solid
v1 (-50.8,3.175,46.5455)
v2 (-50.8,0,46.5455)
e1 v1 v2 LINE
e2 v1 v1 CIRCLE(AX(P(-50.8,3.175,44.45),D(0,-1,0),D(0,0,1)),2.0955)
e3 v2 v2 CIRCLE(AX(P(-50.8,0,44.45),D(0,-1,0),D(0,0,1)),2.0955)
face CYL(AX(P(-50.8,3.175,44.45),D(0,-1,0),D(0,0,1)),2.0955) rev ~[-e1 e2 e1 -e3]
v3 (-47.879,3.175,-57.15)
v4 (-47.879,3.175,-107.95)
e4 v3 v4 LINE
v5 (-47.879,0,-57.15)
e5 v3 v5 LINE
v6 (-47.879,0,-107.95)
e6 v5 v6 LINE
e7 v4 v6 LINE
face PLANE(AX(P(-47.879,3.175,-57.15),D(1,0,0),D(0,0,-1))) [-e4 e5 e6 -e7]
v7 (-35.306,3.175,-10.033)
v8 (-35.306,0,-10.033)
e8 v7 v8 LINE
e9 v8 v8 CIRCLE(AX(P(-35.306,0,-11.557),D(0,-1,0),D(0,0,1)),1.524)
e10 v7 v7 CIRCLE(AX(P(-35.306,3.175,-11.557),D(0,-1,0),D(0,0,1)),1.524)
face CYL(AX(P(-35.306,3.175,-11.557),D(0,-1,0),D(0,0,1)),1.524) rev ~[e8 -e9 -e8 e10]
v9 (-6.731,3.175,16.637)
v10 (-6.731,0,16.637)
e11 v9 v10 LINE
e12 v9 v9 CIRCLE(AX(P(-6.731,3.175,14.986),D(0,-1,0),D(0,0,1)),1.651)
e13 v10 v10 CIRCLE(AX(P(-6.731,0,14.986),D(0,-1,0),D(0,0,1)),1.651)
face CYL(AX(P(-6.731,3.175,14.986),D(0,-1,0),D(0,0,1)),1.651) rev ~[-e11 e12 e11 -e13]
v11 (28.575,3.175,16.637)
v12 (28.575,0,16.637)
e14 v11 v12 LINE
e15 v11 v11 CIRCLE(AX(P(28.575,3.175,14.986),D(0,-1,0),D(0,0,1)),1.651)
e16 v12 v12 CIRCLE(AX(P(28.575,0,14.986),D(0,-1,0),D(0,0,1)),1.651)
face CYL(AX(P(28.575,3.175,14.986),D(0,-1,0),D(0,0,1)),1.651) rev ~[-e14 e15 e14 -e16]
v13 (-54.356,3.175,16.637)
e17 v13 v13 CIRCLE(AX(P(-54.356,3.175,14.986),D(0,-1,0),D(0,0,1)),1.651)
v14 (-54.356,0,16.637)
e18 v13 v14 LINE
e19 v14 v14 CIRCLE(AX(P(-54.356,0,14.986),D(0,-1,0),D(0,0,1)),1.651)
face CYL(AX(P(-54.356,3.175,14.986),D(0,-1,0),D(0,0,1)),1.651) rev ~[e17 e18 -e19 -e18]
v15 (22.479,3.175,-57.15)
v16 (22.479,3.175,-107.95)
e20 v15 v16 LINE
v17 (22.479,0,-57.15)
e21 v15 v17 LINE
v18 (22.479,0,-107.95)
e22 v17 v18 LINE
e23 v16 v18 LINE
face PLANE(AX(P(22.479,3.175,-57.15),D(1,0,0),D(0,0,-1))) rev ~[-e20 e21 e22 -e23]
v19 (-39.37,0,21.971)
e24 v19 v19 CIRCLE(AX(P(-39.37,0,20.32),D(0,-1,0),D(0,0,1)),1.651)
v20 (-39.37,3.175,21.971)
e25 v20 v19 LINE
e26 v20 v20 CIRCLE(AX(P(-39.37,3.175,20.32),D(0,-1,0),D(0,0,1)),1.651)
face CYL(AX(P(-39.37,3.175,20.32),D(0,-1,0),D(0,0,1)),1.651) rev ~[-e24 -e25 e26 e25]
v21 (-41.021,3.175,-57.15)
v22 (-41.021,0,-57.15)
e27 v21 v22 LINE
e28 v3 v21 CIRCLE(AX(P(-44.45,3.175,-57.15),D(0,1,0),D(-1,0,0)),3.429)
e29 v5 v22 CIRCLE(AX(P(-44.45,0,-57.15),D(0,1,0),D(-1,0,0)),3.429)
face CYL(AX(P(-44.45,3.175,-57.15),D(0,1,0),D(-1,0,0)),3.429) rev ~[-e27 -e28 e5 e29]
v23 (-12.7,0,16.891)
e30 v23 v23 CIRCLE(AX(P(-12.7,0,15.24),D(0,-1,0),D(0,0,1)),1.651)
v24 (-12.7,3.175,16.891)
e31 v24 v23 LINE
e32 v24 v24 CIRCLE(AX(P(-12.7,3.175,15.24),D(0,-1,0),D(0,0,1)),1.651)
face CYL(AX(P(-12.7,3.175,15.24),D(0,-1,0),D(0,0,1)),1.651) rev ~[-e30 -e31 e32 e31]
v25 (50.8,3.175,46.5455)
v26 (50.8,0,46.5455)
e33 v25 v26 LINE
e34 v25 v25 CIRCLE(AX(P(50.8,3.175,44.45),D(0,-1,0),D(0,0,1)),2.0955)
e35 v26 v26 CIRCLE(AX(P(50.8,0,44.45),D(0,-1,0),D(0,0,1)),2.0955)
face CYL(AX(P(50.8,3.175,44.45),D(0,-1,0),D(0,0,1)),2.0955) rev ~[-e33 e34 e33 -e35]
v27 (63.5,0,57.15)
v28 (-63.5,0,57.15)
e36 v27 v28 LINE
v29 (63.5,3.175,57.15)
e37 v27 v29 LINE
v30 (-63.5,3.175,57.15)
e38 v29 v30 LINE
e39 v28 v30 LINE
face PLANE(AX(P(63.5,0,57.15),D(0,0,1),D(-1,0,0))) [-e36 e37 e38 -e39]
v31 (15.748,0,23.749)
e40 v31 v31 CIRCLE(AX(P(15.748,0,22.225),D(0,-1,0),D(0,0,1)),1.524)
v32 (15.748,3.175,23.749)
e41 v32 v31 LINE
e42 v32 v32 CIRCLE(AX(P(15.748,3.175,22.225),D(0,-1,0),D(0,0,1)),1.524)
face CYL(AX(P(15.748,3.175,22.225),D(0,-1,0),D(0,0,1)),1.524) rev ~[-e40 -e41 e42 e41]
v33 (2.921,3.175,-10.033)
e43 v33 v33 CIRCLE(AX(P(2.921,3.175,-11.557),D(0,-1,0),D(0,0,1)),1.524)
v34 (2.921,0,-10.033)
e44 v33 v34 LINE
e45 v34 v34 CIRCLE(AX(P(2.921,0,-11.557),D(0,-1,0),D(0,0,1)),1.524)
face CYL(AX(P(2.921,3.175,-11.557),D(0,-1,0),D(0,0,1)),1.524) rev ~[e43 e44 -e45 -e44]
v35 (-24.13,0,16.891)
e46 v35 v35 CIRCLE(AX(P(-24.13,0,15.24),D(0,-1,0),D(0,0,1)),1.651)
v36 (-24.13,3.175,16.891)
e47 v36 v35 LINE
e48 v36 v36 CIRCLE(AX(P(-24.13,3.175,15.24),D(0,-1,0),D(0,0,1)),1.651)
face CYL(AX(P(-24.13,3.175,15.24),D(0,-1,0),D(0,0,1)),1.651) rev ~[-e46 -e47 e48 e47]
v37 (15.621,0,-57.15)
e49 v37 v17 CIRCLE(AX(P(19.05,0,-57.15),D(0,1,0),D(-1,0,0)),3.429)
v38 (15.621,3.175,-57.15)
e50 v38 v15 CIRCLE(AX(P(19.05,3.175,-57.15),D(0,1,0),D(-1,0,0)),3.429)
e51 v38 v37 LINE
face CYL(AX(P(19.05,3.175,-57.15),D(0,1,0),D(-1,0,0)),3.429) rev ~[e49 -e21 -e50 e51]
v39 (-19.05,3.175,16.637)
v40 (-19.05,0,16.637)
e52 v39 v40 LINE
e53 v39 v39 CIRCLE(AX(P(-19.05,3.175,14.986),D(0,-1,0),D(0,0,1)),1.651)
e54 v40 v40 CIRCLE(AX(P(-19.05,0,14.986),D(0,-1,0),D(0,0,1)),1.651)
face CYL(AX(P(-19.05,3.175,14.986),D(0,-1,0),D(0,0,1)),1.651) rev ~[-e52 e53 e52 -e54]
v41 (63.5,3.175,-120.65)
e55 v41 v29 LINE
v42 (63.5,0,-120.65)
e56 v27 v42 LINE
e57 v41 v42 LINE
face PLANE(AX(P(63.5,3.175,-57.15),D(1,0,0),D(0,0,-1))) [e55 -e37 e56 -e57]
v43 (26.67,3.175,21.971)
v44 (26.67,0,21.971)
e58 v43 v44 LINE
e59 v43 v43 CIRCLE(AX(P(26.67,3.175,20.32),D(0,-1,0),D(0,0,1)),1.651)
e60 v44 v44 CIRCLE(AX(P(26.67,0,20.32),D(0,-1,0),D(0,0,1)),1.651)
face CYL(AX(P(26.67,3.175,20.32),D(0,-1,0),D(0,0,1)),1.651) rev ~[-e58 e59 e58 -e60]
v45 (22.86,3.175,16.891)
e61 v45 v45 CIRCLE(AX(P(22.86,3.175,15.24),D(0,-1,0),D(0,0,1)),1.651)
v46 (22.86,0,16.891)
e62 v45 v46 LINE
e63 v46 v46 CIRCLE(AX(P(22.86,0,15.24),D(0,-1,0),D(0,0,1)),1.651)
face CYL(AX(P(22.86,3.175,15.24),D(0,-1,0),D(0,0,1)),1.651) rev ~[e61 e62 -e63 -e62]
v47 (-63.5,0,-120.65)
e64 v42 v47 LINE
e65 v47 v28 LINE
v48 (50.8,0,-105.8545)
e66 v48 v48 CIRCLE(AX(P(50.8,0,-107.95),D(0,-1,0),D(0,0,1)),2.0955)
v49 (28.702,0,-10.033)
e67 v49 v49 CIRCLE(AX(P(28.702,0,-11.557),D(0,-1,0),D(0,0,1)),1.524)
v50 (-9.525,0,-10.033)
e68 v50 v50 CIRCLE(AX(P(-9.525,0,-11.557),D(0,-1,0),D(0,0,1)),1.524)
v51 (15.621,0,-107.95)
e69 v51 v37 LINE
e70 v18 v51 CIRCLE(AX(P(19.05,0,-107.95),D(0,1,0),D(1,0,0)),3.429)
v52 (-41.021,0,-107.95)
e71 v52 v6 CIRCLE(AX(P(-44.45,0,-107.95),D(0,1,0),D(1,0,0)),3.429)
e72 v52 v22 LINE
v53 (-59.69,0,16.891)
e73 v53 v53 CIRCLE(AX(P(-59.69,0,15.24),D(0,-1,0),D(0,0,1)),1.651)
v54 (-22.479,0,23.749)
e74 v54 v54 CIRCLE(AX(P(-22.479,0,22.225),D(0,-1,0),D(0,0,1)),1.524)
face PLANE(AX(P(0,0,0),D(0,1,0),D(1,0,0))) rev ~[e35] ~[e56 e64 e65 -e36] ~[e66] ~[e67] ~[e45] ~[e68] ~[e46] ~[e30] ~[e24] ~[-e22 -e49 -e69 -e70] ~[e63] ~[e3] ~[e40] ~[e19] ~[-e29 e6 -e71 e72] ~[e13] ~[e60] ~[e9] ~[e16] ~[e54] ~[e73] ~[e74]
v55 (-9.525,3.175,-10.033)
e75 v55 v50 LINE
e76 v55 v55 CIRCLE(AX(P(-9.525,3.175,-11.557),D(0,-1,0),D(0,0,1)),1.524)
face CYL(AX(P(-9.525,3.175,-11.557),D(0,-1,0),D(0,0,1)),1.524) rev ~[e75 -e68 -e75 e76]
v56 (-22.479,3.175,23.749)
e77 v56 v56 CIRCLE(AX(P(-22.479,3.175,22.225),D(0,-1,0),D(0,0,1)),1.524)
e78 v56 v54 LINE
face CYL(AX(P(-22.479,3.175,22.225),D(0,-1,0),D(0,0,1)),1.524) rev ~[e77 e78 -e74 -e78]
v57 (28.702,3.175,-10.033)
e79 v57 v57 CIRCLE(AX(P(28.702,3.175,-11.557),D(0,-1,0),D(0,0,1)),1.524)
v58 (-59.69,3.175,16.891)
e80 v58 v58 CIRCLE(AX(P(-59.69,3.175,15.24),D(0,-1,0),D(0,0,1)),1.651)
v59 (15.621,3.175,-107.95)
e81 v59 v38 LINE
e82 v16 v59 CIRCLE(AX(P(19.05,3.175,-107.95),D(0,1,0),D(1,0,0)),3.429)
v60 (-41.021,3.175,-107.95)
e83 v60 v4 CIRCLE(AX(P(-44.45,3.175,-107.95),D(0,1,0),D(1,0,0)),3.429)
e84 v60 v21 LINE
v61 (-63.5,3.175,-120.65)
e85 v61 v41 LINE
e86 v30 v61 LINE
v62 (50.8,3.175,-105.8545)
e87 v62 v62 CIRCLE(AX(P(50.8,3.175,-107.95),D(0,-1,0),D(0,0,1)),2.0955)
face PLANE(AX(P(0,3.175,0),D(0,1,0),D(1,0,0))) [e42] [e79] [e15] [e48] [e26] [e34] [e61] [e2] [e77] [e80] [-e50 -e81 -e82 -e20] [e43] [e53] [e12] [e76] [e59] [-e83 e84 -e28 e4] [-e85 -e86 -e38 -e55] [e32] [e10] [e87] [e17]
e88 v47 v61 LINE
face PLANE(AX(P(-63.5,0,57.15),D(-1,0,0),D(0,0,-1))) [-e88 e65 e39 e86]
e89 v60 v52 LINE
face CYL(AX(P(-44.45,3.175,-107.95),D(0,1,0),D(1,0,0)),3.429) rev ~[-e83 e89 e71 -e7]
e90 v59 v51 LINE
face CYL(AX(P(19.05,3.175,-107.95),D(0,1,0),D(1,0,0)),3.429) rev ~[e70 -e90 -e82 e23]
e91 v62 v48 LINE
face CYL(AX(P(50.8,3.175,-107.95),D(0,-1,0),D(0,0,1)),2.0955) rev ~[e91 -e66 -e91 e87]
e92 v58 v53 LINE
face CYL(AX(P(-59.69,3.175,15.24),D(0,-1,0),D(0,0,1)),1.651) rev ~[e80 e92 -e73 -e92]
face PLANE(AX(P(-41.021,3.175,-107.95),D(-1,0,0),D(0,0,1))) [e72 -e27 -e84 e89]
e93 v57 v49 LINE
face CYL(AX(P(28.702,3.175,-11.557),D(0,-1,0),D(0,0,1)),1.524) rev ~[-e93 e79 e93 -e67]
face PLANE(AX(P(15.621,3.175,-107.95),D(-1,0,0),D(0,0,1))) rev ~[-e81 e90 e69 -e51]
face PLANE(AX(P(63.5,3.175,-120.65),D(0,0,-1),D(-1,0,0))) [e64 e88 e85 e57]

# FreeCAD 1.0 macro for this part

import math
import FreeCAD as App
import Part
import Sketcher
Q = App.Units.Quantity

doc = App.newDocument("Part")
body = doc.addObject("PartDesign::Body", "Body")

# Sketch on XZ plane
sketch1 = body.newObject("Sketcher::SketchObject", "Sketch")
sketch1.AttachmentSupport = (doc.getObject("XZ_Plane"), [""])
sketch1.MapMode = "FlatFace"
sketch1.addGeometry([
    Part.LineSegment(App.Vector(-64, 57, 0), App.Vector(64, 57, 0)),  # 0
    Part.LineSegment(App.Vector(64, 57, 0), App.Vector(64, -57, 0)),  # 1
    Part.LineSegment(App.Vector(64, -57, 0), App.Vector(38, -57, 0)),  # 2
    Part.LineSegment(App.Vector(38, -57, 0), App.Vector(38, -121, 0)),  # 3
    Part.LineSegment(App.Vector(38, -121, 0), App.Vector(-64, -121, 0)),  # 4
    Part.LineSegment(App.Vector(-64, -121, 0), App.Vector(-64, 57, 0)),  # 5
], False)
sketch1.addConstraint([
    Sketcher.Constraint("Coincident", 0, 2, 1, 1),
    Sketcher.Constraint("Coincident", 1, 2, 2, 1),
    Sketcher.Constraint("Coincident", 2, 2, 3, 1),
    Sketcher.Constraint("Coincident", 3, 2, 4, 1),
    Sketcher.Constraint("Coincident", 4, 2, 5, 1),
    Sketcher.Constraint("Coincident", 5, 2, 0, 1),
    Sketcher.Constraint("Horizontal", 0),
    Sketcher.Constraint("Vertical", 1),
    Sketcher.Constraint("Horizontal", 2),
    Sketcher.Constraint("Vertical", 3),
    Sketcher.Constraint("Horizontal", 4),
    Sketcher.Constraint("Vertical", 5),
    Sketcher.Constraint("Symmetric", 1, 2, 5, 2, -1, 1),
    Sketcher.Constraint("DistanceX", 0, 1, 0, 2, Q("5 in")),
    Sketcher.Constraint("DistanceX", 4, 2, 4, 1, Q("4 in")),
    Sketcher.Constraint("DistanceY", 1, 2, 1, 1, Q("4.5 in")),
    Sketcher.Constraint("DistanceY", 3, 2, 3, 1, Q("2.5 in")),
])
pad1 = body.newObject("PartDesign::Pad", "Pad")
pad1.Profile = sketch1
pad1.Length = Q("0.125 in")
pad1.Reversed = True

# Sketch on XZ plane
sketch2 = body.newObject("Sketcher::SketchObject", "Sketch001")
sketch2.AttachmentSupport = (doc.getObject("XZ_Plane"), [""])
sketch2.MapMode = "FlatFace"
sketch2.AttachmentOffset = App.Placement(App.Vector(0, 0, -0.125 * 25.4), App.Rotation())
sketch2.addGeometry([
    Part.LineSegment(App.Vector(38, -121, 0), App.Vector(38, -57, 0)),
    Part.LineSegment(App.Vector(38, -57, 0), App.Vector(64, -57, 0)),
    Part.LineSegment(App.Vector(64, -57, 0), App.Vector(64, -121, 0)),
    Part.LineSegment(App.Vector(64, -121, 0), App.Vector(38, -121, 0)),
], False)
sketch2.addConstraint([
    Sketcher.Constraint("Coincident", 0, 2, 1, 1),
    Sketcher.Constraint("Coincident", 1, 2, 2, 1),
    Sketcher.Constraint("Coincident", 2, 2, 3, 1),
    Sketcher.Constraint("Coincident", 3, 2, 0, 1),
    Sketcher.Constraint("Vertical", 0),
    Sketcher.Constraint("Horizontal", 1),
    Sketcher.Constraint("Vertical", 2),
    Sketcher.Constraint("Horizontal", 3),
    Sketcher.Constraint("DistanceX", 1, 1, 1, 2, Q("1 in")),
    Sketcher.Constraint("DistanceY", 0, 1, 0, 2, Q("2.5 in")),
    Sketcher.Constraint("DistanceX", -1, 1, 0, 2, Q("1.5 in")),
    Sketcher.Constraint("DistanceY", 0, 2, -1, 1, Q("2.25 in")),
])
pad2 = body.newObject("PartDesign::Pad", "Pad001")
pad2.Profile = sketch2
pad2.Length = Q("0.125 in")

# Sketch on XZ plane
sketch3 = body.newObject("Sketcher::SketchObject", "Sketch002")
sketch3.AttachmentSupport = (doc.getObject("XZ_Plane"), [""])
sketch3.MapMode = "FlatFace"
sketch3.AttachmentOffset = App.Placement(App.Vector(0, 0, -0.125 * 25.4), App.Rotation())
sketch3.addGeometry([
    Part.Circle(App.Vector(50.8, 44.5, 0), App.Vector(0, 0, 1), 2.1),
    Part.Circle(App.Vector(-50.8, 44.5, 0), App.Vector(0, 0, 1), 2.1),
], False)
sketch3.addConstraint([
    Sketcher.Constraint("Equal", 0, 1),
    Sketcher.Constraint("Symmetric", 0, 3, 1, 3, -2),
    Sketcher.Constraint("Diameter", 0, Q("0.165 in")),
    Sketcher.Constraint("DistanceX", -1, 1, 0, 3, Q("2 in")),
    Sketcher.Constraint("DistanceY", -1, 1, 0, 3, Q("1.75 in")),
])
doc.recompute()
hole = body.newObject("PartDesign::Hole", "Hole")
hole.Profile = sketch3
hole.ThreadType = "None"
hole.Diameter = Q("0.165 in")
hole.DepthType = "ThroughAll"
hole.Reversed = True

# Sketch on XZ plane
sketch4 = body.newObject("Sketcher::SketchObject", "Sketch003")
sketch4.AttachmentSupport = (doc.getObject("XZ_Plane"), [""])
sketch4.MapMode = "FlatFace"
sketch4.AttachmentOffset = App.Placement(App.Vector(0, 0, -0.125 * 25.4), App.Rotation())
sketch4.addGeometry([
    Part.ArcOfCircle(Part.Circle(App.Vector(19.1, -108, 0), App.Vector(0, 0, 1), 3.4), math.radians(180), math.radians(360)),  # 0
    Part.LineSegment(App.Vector(15.6, -108, 0), App.Vector(15.6, -57.1, 0)),  # 1
    Part.ArcOfCircle(Part.Circle(App.Vector(19.1, -57.1, 0), App.Vector(0, 0, 1), 3.4), math.radians(0), math.radians(180)),  # 2
    Part.LineSegment(App.Vector(22.5, -57.1, 0), App.Vector(22.5, -108, 0)),  # 3
    Part.LineSegment(App.Vector(-41, -57.1, 0), App.Vector(-41, -108, 0)),  # 4
    Part.ArcOfCircle(Part.Circle(App.Vector(-44.5, -108, 0), App.Vector(0, 0, 1), 3.4), math.radians(180), math.radians(360)),  # 5
    Part.LineSegment(App.Vector(-47.9, -108, 0), App.Vector(-47.9, -57.1, 0)),  # 6
    Part.ArcOfCircle(Part.Circle(App.Vector(-44.5, -57.1, 0), App.Vector(0, 0, 1), 3.4), math.radians(0), math.radians(180)),  # 7
], False)
sketch4.addConstraint([
    Sketcher.Constraint("Tangent", 0, 1, 1, 1),
    Sketcher.Constraint("Tangent", 1, 2, 2, 2),
    Sketcher.Constraint("Tangent", 2, 1, 3, 1),
    Sketcher.Constraint("Tangent", 3, 2, 0, 2),
    Sketcher.Constraint("Tangent", 4, 2, 5, 2),
    Sketcher.Constraint("Tangent", 5, 1, 6, 1),
    Sketcher.Constraint("Tangent", 6, 2, 7, 2),
    Sketcher.Constraint("Tangent", 7, 1, 4, 1),
    Sketcher.Constraint("Vertical", 1),
    Sketcher.Constraint("Vertical", 3),
    Sketcher.Constraint("Vertical", 4),
    Sketcher.Constraint("Vertical", 6),
    Sketcher.Constraint("Equal", 2, 5),
    Sketcher.Constraint("Horizontal", 0, 3, 5, 3),
    Sketcher.Constraint("Horizontal", 2, 3, 7, 3),
    Sketcher.Constraint("DistanceY", 1, 1, 1, 2, Q("2 in")),
    Sketcher.Constraint("Radius", 0, Q("0.135 in")),
    Sketcher.Constraint("DistanceX", -1, 1, 0, 3, Q("0.75 in")),
    Sketcher.Constraint("DistanceX", 5, 3, 0, 3, Q("2.5 in")),
    Sketcher.Constraint("DistanceY", 0, 3, -1, 1, Q("4.25 in")),
])
pocket1 = body.newObject("PartDesign::Pocket", "Pocket")
pocket1.Profile = sketch4
pocket1.Type = "ThroughAll"
pocket1.Reversed = True

# Sketch on XZ plane
sketch5 = body.newObject("Sketcher::SketchObject", "Sketch004")
sketch5.AttachmentSupport = (doc.getObject("XZ_Plane"), [""])
sketch5.MapMode = "FlatFace"
sketch5.AttachmentOffset = App.Placement(App.Vector(0, 0, -0.125 * 25.4), App.Rotation())
sketch5.addGeometry([
    Part.Circle(App.Vector(-54.4, 15, 0), App.Vector(0, 0, 1), 1.7),
    Part.Circle(App.Vector(-19.1, 15, 0), App.Vector(0, 0, 1), 1.7),
    Part.Circle(App.Vector(-6.7, 15, 0), App.Vector(0, 0, 1), 1.7),
    Part.Circle(App.Vector(28.6, 15, 0), App.Vector(0, 0, 1), 1.7),
], False)
sketch5.addConstraint([
    Sketcher.Constraint("Equal", 0, 1),
    Sketcher.Constraint("Equal", 1, 2),
    Sketcher.Constraint("Equal", 2, 3),
    Sketcher.Constraint("Horizontal", 0, 3, 1, 3),
    Sketcher.Constraint("Horizontal", 1, 3, 2, 3),
    Sketcher.Constraint("Horizontal", 2, 3, 3, 3),
    Sketcher.Constraint("Diameter", 0, Q("0.13 in")),
    Sketcher.Constraint("DistanceX", 0, 3, -1, 1, Q("2.14 in")),
    Sketcher.Constraint("DistanceY", -1, 1, 0, 3, Q("0.59 in")),
    Sketcher.Constraint("DistanceX", 1, 3, -1, 1, Q("0.75 in")),
    Sketcher.Constraint("DistanceX", 2, 3, 3, 3, Q("1.39 in")),
    Sketcher.Constraint("DistanceX", 2, 3, -1, 1, Q("0.265 in")),
])
doc.recompute()
hole2 = body.newObject("PartDesign::Hole", "Hole001")
hole2.Profile = sketch5
hole2.ThreadType = "None"
hole2.Diameter = Q("0.13 in")
hole2.DepthType = "ThroughAll"
hole2.Reversed = True

# Sketch on XZ plane
sketch6 = body.newObject("Sketcher::SketchObject", "Sketch005")
sketch6.AttachmentSupport = (doc.getObject("XZ_Plane"), [""])
sketch6.MapMode = "FlatFace"
sketch6.AttachmentOffset = App.Placement(App.Vector(0, 0, -0.125 * 25.4), App.Rotation())
sketch6.addGeometry([
    Part.Circle(App.Vector(22.9, 15.2, 0), App.Vector(0, 0, 1), 1.7),
    Part.Circle(App.Vector(-12.7, 15.2, 0), App.Vector(0, 0, 1), 1.7),
    Part.Circle(App.Vector(-24.1, 15.2, 0), App.Vector(0, 0, 1), 1.7),
    Part.Circle(App.Vector(-59.7, 15.2, 0), App.Vector(0, 0, 1), 1.7),
], False)
sketch6.addConstraint([
    Sketcher.Constraint("Equal", 0, 1),
    Sketcher.Constraint("Equal", 1, 2),
    Sketcher.Constraint("Equal", 2, 3),
    Sketcher.Constraint("Horizontal", 0, 3, 1, 3),
    Sketcher.Constraint("Horizontal", 1, 3, 2, 3),
    Sketcher.Constraint("Horizontal", 2, 3, 3, 3),
    Sketcher.Constraint("Diameter", 0, Q("0.13 in")),
    Sketcher.Constraint("DistanceX", -1, 1, 0, 3, Q("0.9 in")),
    Sketcher.Constraint("DistanceY", -1, 1, 0, 3, Q("0.6 in")),
    Sketcher.Constraint("DistanceX", 1, 3, -1, 1, Q("0.5 in")),
    Sketcher.Constraint("DistanceX", 3, 3, 2, 3, Q("1.4 in")),
    Sketcher.Constraint("DistanceX", 2, 3, -1, 1, Q("0.95 in")),
])
doc.recompute()
hole3 = body.newObject("PartDesign::Hole", "Hole002")
hole3.Profile = sketch6
hole3.ThreadType = "None"
hole3.Diameter = Q("0.13 in")
hole3.DepthType = "ThroughAll"
hole3.Reversed = True

# Sketch on XZ plane
sketch7 = body.newObject("Sketcher::SketchObject", "Sketch006")
sketch7.AttachmentSupport = (doc.getObject("XZ_Plane"), [""])
sketch7.MapMode = "FlatFace"
sketch7.AttachmentOffset = App.Placement(App.Vector(0, 0, -0.125 * 25.4), App.Rotation())
sketch7.addGeometry([
    Part.Circle(App.Vector(26.7, 20.3, 0), App.Vector(0, 0, 1), 1.7),
    Part.Circle(App.Vector(-39.4, 20.3, 0), App.Vector(0, 0, 1), 1.7),
], False)
sketch7.addConstraint([
    Sketcher.Constraint("Equal", 0, 1),
    Sketcher.Constraint("Horizontal", 0, 3, 1, 3),
    Sketcher.Constraint("Diameter", 0, Q("0.13 in")),
    Sketcher.Constraint("DistanceY", -1, 1, 0, 3, Q("0.8 in")),
    Sketcher.Constraint("DistanceX", 1, 3, 0, 3, Q("2.6 in")),
    Sketcher.Constraint("DistanceX", -1, 1, 0, 3, Q("1.05 in")),
])
doc.recompute()
hole4 = body.newObject("PartDesign::Hole", "Hole003")
hole4.Profile = sketch7
hole4.ThreadType = "None"
hole4.Diameter = Q("0.13 in")
hole4.DepthType = "ThroughAll"
hole4.Reversed = True

# Sketch on XZ plane
sketch8 = body.newObject("Sketcher::SketchObject", "Sketch007")
sketch8.AttachmentSupport = (doc.getObject("XZ_Plane"), [""])
sketch8.MapMode = "FlatFace"
sketch8.AttachmentOffset = App.Placement(App.Vector(0, 0, -0.125 * 25.4), App.Rotation())
sketch8.addGeometry([
    Part.Circle(App.Vector(-35.3, -11.6, 0), App.Vector(0, 0, 1), 1.5),  # 0
    Part.Circle(App.Vector(2.9, -11.6, 0), App.Vector(0, 0, 1), 1.5),  # 1
    Part.Circle(App.Vector(-22.5, 22.2, 0), App.Vector(0, 0, 1), 1.5),  # 2
    Part.Circle(App.Vector(15.7, 22.2, 0), App.Vector(0, 0, 1), 1.5),  # 3
    Part.Circle(App.Vector(-9.5, -11.6, 0), App.Vector(0, 0, 1), 1.5),  # 4
    Part.Circle(App.Vector(28.7, -11.6, 0), App.Vector(0, 0, 1), 1.5),  # 5
], False)
sketch8.addConstraint([
    Sketcher.Constraint("Equal", 0, 1),
    Sketcher.Constraint("Equal", 1, 2),
    Sketcher.Constraint("Equal", 2, 3),
    Sketcher.Constraint("Equal", 3, 4),
    Sketcher.Constraint("Equal", 4, 5),
    Sketcher.Constraint("Horizontal", 0, 3, 1, 3),
    Sketcher.Constraint("Horizontal", 2, 3, 3, 3),
    Sketcher.Constraint("Horizontal", 1, 3, 4, 3),
    Sketcher.Constraint("Horizontal", 4, 3, 5, 3),
    Sketcher.Constraint("Diameter", 0, Q("0.12 in")),
    Sketcher.Constraint("DistanceX", 2, 3, 1, 3, Q("1 in")),
    Sketcher.Constraint("DistanceX", 0, 3, -1, 1, Q("1.39 in")),
    Sketcher.Constraint("DistanceX", -1, 1, 3, 3, Q("0.62 in")),
    Sketcher.Constraint("DistanceX", -1, 1, 5, 3, Q("1.13 in")),
    Sketcher.Constraint("DistanceY", 0, 3, 2, 3, Q("1.33 in")),
    Sketcher.Constraint("DistanceX", 4, 3, 1, 3, Q("0.49 in")),
    Sketcher.Constraint("DistanceY", 0, 3, -1, 1, Q("0.455 in")),
    Sketcher.Constraint("DistanceX", -1, 1, 1, 3, Q("0.115 in")),
])
doc.recompute()
hole5 = body.newObject("PartDesign::Hole", "Hole004")
hole5.Profile = sketch8
hole5.ThreadType = "None"
hole5.Diameter = Q("0.12 in")
hole5.DepthType = "ThroughAll"
hole5.Reversed = True

# Sketch on XZ plane
sketch9 = body.newObject("Sketcher::SketchObject", "Sketch008")
sketch9.AttachmentSupport = (doc.getObject("XZ_Plane"), [""])
sketch9.MapMode = "FlatFace"
sketch9.AttachmentOffset = App.Placement(App.Vector(0, 0, -0.125 * 25.4), App.Rotation())
sketch9.addGeometry(Part.Circle(App.Vector(50.8, -108, 0), App.Vector(0, 0, 1), 2.1), False)
sketch9.addConstraint([
    Sketcher.Constraint("Diameter", 0, Q("0.165 in")),
    Sketcher.Constraint("DistanceX", -1, 1, 0, 3, Q("2 in")),
    Sketcher.Constraint("DistanceY", 0, 3, -1, 1, Q("4.25 in")),
])
doc.recompute()
hole6 = body.newObject("PartDesign::Hole", "Hole005")
hole6.Profile = sketch9
hole6.ThreadType = "None"
hole6.Diameter = Q("0.165 in")
hole6.DepthType = "ThroughAll"
hole6.Reversed = True

doc.recompute()
